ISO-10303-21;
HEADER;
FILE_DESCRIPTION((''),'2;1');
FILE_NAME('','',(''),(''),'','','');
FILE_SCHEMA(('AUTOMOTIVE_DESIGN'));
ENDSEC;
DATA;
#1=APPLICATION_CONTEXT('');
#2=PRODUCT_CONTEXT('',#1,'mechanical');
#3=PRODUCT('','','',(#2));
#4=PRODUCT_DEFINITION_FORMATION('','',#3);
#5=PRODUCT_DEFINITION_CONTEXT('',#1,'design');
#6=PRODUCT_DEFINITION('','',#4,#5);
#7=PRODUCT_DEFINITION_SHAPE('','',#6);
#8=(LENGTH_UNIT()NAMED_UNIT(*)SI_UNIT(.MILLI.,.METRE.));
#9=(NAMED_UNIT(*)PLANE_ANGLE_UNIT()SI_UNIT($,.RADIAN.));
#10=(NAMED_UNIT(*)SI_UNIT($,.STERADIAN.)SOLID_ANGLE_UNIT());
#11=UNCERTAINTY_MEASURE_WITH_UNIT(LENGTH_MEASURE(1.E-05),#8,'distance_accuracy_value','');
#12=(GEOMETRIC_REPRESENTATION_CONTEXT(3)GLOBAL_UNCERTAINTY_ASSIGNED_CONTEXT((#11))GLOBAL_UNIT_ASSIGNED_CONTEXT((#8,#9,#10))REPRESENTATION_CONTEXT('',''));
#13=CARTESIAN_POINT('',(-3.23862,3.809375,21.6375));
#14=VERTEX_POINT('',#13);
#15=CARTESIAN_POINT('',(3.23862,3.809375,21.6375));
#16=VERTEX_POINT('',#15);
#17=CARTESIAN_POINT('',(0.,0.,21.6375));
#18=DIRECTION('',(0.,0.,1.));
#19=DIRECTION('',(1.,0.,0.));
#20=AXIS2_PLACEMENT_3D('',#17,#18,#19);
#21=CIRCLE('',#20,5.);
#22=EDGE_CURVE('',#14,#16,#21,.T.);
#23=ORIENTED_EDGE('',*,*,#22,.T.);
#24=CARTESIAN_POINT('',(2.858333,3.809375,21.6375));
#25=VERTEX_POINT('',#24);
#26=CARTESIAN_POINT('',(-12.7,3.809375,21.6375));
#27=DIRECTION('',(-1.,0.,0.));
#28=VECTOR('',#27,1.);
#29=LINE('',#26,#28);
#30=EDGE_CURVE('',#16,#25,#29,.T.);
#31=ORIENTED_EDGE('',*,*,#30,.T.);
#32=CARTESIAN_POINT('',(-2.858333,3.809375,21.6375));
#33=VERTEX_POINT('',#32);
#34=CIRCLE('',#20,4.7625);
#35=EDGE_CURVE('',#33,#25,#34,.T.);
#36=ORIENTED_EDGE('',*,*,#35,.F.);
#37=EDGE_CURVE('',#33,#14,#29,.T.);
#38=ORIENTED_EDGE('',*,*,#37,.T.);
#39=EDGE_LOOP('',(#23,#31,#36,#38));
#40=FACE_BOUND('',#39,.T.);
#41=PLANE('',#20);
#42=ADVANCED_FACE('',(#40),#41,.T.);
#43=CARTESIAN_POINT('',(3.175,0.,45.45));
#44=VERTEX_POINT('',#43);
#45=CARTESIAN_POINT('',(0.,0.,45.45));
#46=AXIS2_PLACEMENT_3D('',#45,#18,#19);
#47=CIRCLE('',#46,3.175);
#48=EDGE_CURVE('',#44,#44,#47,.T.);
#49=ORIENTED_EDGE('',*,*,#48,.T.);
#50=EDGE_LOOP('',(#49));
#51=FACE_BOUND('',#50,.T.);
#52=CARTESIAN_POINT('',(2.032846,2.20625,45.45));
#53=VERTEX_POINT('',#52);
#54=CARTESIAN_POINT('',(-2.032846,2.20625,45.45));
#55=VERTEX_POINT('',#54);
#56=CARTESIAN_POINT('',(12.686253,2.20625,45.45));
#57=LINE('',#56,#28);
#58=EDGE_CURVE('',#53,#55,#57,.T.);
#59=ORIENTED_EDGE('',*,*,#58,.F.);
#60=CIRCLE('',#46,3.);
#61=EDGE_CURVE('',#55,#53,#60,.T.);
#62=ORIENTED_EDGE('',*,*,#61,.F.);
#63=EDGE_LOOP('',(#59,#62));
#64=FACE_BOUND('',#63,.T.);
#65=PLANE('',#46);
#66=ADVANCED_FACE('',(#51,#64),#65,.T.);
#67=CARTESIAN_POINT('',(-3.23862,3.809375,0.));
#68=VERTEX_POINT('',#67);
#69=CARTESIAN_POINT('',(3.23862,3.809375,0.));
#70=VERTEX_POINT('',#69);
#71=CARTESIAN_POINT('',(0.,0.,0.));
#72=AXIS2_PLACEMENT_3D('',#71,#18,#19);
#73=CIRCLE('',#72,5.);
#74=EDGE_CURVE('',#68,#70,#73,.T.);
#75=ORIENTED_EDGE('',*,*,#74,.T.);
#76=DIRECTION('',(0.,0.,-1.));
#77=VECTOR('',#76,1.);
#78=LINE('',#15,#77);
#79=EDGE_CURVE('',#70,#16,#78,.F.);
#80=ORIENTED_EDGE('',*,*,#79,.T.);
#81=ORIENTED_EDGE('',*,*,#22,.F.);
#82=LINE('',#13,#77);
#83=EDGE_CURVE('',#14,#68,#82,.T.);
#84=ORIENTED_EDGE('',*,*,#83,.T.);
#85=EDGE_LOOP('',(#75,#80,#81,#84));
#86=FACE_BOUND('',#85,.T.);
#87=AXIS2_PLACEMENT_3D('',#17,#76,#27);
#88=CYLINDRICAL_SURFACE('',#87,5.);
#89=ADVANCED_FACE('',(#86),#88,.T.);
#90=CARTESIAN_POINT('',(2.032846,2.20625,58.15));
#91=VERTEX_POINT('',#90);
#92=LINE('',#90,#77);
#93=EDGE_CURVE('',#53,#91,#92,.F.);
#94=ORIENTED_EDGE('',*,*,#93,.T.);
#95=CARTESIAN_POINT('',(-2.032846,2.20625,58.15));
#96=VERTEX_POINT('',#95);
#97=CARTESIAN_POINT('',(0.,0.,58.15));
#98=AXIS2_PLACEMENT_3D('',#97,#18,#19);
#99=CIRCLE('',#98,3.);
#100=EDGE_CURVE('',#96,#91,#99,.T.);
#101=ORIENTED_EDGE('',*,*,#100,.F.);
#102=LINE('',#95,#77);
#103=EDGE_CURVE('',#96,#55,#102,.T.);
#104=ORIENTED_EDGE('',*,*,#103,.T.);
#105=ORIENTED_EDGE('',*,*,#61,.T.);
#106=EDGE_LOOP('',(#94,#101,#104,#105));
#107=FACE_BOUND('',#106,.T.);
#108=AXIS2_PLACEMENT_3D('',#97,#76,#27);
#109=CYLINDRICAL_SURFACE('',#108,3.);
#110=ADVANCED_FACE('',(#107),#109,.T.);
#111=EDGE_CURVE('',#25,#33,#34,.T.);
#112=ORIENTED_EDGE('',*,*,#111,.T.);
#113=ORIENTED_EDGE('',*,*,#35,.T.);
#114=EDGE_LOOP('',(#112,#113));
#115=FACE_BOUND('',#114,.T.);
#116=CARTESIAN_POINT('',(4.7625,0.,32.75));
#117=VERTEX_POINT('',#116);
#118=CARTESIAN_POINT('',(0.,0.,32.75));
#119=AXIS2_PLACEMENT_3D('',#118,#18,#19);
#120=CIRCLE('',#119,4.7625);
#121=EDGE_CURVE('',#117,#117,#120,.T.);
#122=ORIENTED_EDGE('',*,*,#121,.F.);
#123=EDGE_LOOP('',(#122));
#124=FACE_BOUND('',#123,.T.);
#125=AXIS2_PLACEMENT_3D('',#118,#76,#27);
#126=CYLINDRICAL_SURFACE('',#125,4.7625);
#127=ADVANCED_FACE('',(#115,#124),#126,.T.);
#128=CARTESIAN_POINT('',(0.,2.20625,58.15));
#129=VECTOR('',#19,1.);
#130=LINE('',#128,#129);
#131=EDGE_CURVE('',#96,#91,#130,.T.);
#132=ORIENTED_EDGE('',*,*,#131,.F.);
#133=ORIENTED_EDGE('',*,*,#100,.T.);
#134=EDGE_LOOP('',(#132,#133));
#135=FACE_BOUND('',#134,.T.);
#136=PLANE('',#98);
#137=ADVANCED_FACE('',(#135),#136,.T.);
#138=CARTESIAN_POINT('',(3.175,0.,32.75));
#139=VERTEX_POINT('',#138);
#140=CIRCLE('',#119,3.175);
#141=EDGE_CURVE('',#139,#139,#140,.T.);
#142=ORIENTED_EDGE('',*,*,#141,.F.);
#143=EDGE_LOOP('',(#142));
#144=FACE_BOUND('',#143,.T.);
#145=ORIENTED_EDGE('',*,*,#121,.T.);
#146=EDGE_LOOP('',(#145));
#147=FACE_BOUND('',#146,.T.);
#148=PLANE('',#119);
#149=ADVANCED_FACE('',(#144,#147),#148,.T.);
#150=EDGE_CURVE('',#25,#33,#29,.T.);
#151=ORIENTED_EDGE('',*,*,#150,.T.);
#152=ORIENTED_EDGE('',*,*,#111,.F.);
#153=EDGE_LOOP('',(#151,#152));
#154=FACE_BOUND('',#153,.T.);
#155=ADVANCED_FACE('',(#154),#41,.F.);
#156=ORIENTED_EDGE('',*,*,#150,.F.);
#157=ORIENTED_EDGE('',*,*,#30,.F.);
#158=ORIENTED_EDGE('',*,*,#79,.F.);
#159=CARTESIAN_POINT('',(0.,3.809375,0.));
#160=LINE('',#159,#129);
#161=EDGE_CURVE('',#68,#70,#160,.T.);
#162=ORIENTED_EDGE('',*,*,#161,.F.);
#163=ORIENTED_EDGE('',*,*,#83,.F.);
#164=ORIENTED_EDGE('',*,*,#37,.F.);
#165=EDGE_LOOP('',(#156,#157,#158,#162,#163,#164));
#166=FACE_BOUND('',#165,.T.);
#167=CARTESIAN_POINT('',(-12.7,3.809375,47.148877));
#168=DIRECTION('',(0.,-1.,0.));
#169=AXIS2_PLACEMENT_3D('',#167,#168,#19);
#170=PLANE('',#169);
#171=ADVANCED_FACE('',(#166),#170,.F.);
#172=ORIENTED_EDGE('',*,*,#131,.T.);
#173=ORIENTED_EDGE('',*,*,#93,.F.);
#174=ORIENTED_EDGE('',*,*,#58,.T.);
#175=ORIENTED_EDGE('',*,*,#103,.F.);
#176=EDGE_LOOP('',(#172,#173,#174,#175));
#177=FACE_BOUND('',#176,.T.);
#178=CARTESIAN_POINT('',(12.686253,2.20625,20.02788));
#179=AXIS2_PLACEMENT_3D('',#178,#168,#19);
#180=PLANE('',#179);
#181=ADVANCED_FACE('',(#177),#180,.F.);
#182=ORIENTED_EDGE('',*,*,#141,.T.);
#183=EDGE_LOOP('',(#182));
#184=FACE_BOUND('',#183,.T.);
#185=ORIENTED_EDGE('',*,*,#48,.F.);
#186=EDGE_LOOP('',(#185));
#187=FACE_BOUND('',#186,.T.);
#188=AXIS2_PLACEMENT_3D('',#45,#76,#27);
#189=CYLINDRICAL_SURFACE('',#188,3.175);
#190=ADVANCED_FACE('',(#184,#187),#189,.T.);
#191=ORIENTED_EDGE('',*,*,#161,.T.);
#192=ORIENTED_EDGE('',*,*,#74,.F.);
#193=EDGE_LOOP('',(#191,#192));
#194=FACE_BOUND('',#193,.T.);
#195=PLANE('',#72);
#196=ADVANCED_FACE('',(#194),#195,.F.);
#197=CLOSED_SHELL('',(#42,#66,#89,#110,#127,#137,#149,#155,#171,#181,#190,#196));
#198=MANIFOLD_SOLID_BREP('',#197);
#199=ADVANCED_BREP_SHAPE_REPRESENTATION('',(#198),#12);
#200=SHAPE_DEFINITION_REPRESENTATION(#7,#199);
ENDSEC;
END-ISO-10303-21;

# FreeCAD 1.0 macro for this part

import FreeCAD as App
import Part
import Sketcher
Q = App.Units.Quantity

doc = App.newDocument("Part")
body = doc.addObject("PartDesign::Body", "Body")

sketch1 = body.newObject("Sketcher::SketchObject", "Sketch")
sketch1.AttachmentSupport = (doc.getObject("XY_Plane"), [""])
sketch1.MapMode = "FlatFace"
sketch1.addGeometry(Part.Circle(App.Vector(0, 0, 0), App.Vector(0, 0, 1), 5), False)
sketch1.addConstraint(Sketcher.Constraint("Coincident", 0, 3, -1, 1))
sketch1.addConstraint(Sketcher.Constraint("Diameter", 0, Q("10 mm")))
pad1 = body.newObject("PartDesign::Pad", "Pad")
pad1.Profile = sketch1
pad1.Length = 21.6375

sketch2 = body.newObject("Sketcher::SketchObject", "Sketch001")
sketch2.AttachmentSupport = (doc.getObject("XY_Plane"), [""])
sketch2.MapMode = "FlatFace"
sketch2.AttachmentOffset = App.Placement(App.Vector(0, 0, 21.6375), App.Rotation())
sketch2.addGeometry(Part.Circle(App.Vector(0, 0, 0), App.Vector(0, 0, 1), 4.7625), False)
sketch2.addConstraint(Sketcher.Constraint("Coincident", 0, 3, -1, 1))
sketch2.addConstraint(Sketcher.Constraint("Diameter", 0, Q("0.375 in")))
pad2 = body.newObject("PartDesign::Pad", "Pad001")
pad2.Profile = sketch2
pad2.Length = Q("0.4375 in")

sketch3 = body.newObject("Sketcher::SketchObject", "Sketch002")
sketch3.AttachmentSupport = (doc.getObject("XY_Plane"), [""])
sketch3.MapMode = "FlatFace"
sketch3.AttachmentOffset = App.Placement(App.Vector(0, 0, 32.75), App.Rotation())
sketch3.addGeometry(Part.Circle(App.Vector(0, 0, 0), App.Vector(0, 0, 1), 3.175), False)
sketch3.addConstraint(Sketcher.Constraint("Coincident", 0, 3, -1, 1))
sketch3.addConstraint(Sketcher.Constraint("Diameter", 0, Q("0.25 in")))
pad3 = body.newObject("PartDesign::Pad", "Pad002")
pad3.Profile = sketch3
pad3.Length = Q("0.5 in")

sketch4 = body.newObject("Sketcher::SketchObject", "Sketch003")
sketch4.AttachmentSupport = (doc.getObject("XY_Plane"), [""])
sketch4.MapMode = "FlatFace"
sketch4.addGeometry(Part.LineSegment(App.Vector(12.7, 6.190625, 0), App.Vector(12.7, 3.809375, 0)), False)
sketch4.addGeometry(Part.LineSegment(App.Vector(12.7, 3.809375, 0), App.Vector(-12.7, 3.809375, 0)), False)
sketch4.addGeometry(Part.LineSegment(App.Vector(-12.7, 3.809375, 0), App.Vector(-12.7, 6.190625, 0)), False)
sketch4.addGeometry(Part.LineSegment(App.Vector(-12.7, 6.190625, 0), App.Vector(12.7, 6.190625, 0)), False)
sketch4.addConstraint(Sketcher.Constraint("Coincident", 0, 2, 1, 1))
sketch4.addConstraint(Sketcher.Constraint("Coincident", 1, 2, 2, 1))
sketch4.addConstraint(Sketcher.Constraint("Coincident", 2, 2, 3, 1))
sketch4.addConstraint(Sketcher.Constraint("Coincident", 3, 2, 0, 1))
sketch4.addConstraint(Sketcher.Constraint("Vertical", 0))
sketch4.addConstraint(Sketcher.Constraint("Horizontal", 1))
sketch4.addConstraint(Sketcher.Constraint("Vertical", 2))
sketch4.addConstraint(Sketcher.Constraint("Horizontal", 3))
sketch4.addConstraint(Sketcher.Constraint("DistanceX", 1, 2, 1, 1, Q("1 in")))
sketch4.addConstraint(Sketcher.Constraint("DistanceX", -1, 1, 0, 2, Q("0.5 in")))
sketch4.addConstraint(Sketcher.Constraint("DistanceY", 0, 2, 0, 1, Q("0.09375 in")))
sketch4.addConstraint(Sketcher.Constraint("DistanceY", -1, 1, 0, 2, Q("3.809375 mm")))
pocket1 = body.newObject("PartDesign::Pocket", "Pocket")
pocket1.Profile = sketch4
pocket1.Length = 21.6375
pocket1.Reversed = True

sketch5 = body.newObject("Sketcher::SketchObject", "Sketch004")
sketch5.AttachmentSupport = (doc.getObject("XY_Plane"), [""])
sketch5.MapMode = "FlatFace"
sketch5.AttachmentOffset = App.Placement(App.Vector(0, 0, 45.45), App.Rotation())
sketch5.addGeometry(Part.Circle(App.Vector(0, 0, 0), App.Vector(0, 0, 1), 3), False)
sketch5.addConstraint(Sketcher.Constraint("Coincident", 0, 3, -1, 1))
sketch5.addConstraint(Sketcher.Constraint("Diameter", 0, Q("6 mm")))
pad4 = body.newObject("PartDesign::Pad", "Pad003")
pad4.Profile = sketch5
pad4.Length = Q("0.5 in")

sketch6 = body.newObject("Sketcher::SketchObject", "Sketch005")
sketch6.AttachmentSupport = (doc.getObject("XY_Plane"), [""])
sketch6.MapMode = "FlatFace"
sketch6.AttachmentOffset = App.Placement(App.Vector(0, 0, 58.15), App.Rotation())
sketch6.addGeometry(Part.LineSegment(App.Vector(-12.686253, 3.79375, 0), App.Vector(-12.686253, 2.20625, 0)), False)
sketch6.addGeometry(Part.LineSegment(App.Vector(-12.686253, 2.20625, 0), App.Vector(12.686253, 2.20625, 0)), False)
sketch6.addGeometry(Part.LineSegment(App.Vector(12.686253, 2.20625, 0), App.Vector(12.686253, 3.79375, 0)), False)
sketch6.addGeometry(Part.LineSegment(App.Vector(12.686253, 3.79375, 0), App.Vector(-12.686253, 3.79375, 0)), False)
sketch6.addConstraint(Sketcher.Constraint("Coincident", 0, 2, 1, 1))
sketch6.addConstraint(Sketcher.Constraint("Coincident", 1, 2, 2, 1))
sketch6.addConstraint(Sketcher.Constraint("Coincident", 2, 2, 3, 1))
sketch6.addConstraint(Sketcher.Constraint("Coincident", 3, 2, 0, 1))
sketch6.addConstraint(Sketcher.Constraint("Vertical", 0))
sketch6.addConstraint(Sketcher.Constraint("Horizontal", 1))
sketch6.addConstraint(Sketcher.Constraint("Vertical", 2))
sketch6.addConstraint(Sketcher.Constraint("Horizontal", 3))
sketch6.addConstraint(Sketcher.Constraint("DistanceY", 0, 2, 0, 1, Q("0.0625 in")))
sketch6.addConstraint(Sketcher.Constraint("DistanceX", 1, 1, 1, 2, Q("25.372506 mm")))
sketch6.addConstraint(Sketcher.Constraint("DistanceY", -1, 1, 0, 2, Q("2.20625 mm")))
sketch6.addConstraint(Sketcher.Constraint("DistanceX", 0, 2, -1, 1, Q("12.686253 mm")))
pocket2 = body.newObject("PartDesign::Pocket", "Pocket001")
pocket2.Profile = sketch6
pocket2.Length = Q("0.5 in")

doc.recompute()
